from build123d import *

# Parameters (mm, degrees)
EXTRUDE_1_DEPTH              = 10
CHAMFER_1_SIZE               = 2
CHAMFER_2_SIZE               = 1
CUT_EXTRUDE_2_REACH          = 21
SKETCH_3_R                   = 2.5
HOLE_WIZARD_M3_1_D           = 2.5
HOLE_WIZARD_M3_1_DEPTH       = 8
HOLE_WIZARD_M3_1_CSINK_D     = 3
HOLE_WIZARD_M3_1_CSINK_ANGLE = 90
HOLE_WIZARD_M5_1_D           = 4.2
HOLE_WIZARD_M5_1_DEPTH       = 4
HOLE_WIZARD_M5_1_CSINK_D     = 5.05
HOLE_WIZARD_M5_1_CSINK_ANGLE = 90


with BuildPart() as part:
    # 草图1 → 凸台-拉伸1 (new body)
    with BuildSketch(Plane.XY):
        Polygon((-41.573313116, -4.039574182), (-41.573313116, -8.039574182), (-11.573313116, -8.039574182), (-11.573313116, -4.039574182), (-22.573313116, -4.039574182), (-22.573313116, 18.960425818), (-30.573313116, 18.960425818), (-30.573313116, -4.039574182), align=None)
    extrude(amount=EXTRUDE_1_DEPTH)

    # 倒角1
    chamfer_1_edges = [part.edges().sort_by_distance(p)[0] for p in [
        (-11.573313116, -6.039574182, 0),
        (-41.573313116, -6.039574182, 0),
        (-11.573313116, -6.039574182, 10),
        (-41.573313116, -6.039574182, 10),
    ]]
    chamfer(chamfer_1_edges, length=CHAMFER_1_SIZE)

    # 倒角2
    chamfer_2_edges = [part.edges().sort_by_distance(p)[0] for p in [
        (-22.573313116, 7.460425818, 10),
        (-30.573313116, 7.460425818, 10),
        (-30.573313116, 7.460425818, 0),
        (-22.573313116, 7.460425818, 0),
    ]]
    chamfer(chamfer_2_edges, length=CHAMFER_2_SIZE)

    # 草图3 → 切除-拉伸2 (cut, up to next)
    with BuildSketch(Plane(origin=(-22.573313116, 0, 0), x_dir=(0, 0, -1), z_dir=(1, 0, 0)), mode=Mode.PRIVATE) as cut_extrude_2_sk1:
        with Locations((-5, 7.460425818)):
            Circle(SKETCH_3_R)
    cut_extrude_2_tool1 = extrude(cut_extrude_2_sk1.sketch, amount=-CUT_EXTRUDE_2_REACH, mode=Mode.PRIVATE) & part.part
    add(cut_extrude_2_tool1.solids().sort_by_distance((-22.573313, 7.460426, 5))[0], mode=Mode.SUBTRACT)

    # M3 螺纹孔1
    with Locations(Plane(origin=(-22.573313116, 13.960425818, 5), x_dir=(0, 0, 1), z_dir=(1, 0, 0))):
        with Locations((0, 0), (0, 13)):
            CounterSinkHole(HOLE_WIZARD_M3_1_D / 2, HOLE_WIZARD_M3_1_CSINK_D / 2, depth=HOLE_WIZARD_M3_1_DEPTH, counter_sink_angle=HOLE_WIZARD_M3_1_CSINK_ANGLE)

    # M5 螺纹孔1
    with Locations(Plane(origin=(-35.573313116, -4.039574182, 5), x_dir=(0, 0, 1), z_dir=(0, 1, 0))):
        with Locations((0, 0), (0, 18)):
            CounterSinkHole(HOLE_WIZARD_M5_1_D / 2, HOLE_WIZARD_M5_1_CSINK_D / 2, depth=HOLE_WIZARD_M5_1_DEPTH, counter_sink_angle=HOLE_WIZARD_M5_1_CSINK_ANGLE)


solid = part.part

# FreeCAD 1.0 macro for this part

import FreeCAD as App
import Part
import Sketcher
from FreeCAD import Vector
Q = App.Units.Quantity


def edges_at(feature, points):
    """Names of the edges that pass closest to the given points."""
    edges = feature.Shape.Edges
    near = lambda p: min(range(len(edges)), key=lambda i: edges[i].distToShape(Part.Vertex(*p))[0])
    return sorted({f"Edge{near(p) + 1}" for p in points})


def add_polygon(sketch, points):
    """Adds a closed chain of lines whose ends are joined by coincident constraints."""
    first, n = sketch.GeometryCount, len(points)
    for a, b in zip(points, points[1:] + points[:1]):
        sketch.addGeometry(Part.LineSegment(App.Vector(*a, 0), App.Vector(*b, 0)), False)
    for i in range(n):
        sketch.addConstraint(Sketcher.Constraint("Coincident", first + i, 2, first + (i + 1) % n, 1))

doc = App.newDocument("Part")
body = doc.addObject("PartDesign::Body", "Body")

sketch1 = body.newObject("Sketcher::SketchObject", "Sketch")
sketch1.AttachmentSupport = (doc.getObject("XY_Plane"), [""])
sketch1.MapMode = "FlatFace"
add_polygon(sketch1, [(-41.6, -4), (-41.6, -8), (-11.6, -8), (-11.6, -4), (-22.6, -4), (-22.6, 19), (-30.6, 19), (-30.6, -4)])
sketch1.addConstraint(Sketcher.Constraint("Vertical", 0))
sketch1.addConstraint(Sketcher.Constraint("Horizontal", 1))
sketch1.addConstraint(Sketcher.Constraint("Vertical", 2))
sketch1.addConstraint(Sketcher.Constraint("Horizontal", 3))
sketch1.addConstraint(Sketcher.Constraint("Vertical", 4))
sketch1.addConstraint(Sketcher.Constraint("Horizontal", 5))
sketch1.addConstraint(Sketcher.Constraint("Vertical", 6))
sketch1.addConstraint(Sketcher.Constraint("Horizontal", 7))
sketch1.addConstraint(Sketcher.Constraint("Horizontal", 3, 2, 6, 2))
sketch1.addConstraint(Sketcher.Constraint("Equal", 3, 7))
sketch1.addConstraint(Sketcher.Constraint("DistanceX", 1, 1, 1, 2, Q("30 mm")))
sketch1.addConstraint(Sketcher.Constraint("DistanceX", 3, 2, 3, 1, Q("11 mm")))
sketch1.addConstraint(Sketcher.Constraint("DistanceY", 0, 2, 0, 1, Q("4 mm")))
sketch1.addConstraint(Sketcher.Constraint("DistanceY", 4, 1, 4, 2, Q("23 mm")))
sketch1.addConstraint(Sketcher.Constraint("DistanceX", 0, 2, -1, 1, Q("41.573313 mm")))
sketch1.addConstraint(Sketcher.Constraint("DistanceY", 0, 2, -1, 1, Q("8.039574 mm")))
pad1 = body.newObject("PartDesign::Pad", "Pad")
pad1.Profile = sketch1
pad1.Length = 10
doc.recompute()

chamfer = body.newObject("PartDesign::Chamfer", "Chamfer")
chamfer.Base = (pad1, edges_at(pad1, [
    (-11.573, -6.04, 0),
    (-41.573, -6.04, 0),
    (-11.573, -6.04, 10),
    (-41.573, -6.04, 10),
]))
chamfer.Size = 2
doc.recompute()

chamfer2 = body.newObject("PartDesign::Chamfer", "Chamfer001")
chamfer2.Base = (chamfer, edges_at(chamfer, [
    (-22.573, 7.46, 10),
    (-30.573, 7.46, 10),
    (-30.573, 7.46, 0),
    (-22.573, 7.46, 0),
]))
chamfer2.Size = 1

sketch2 = body.newObject("Sketcher::SketchObject", "Sketch001")
sketch2.AttachmentSupport = (doc.getObject("YZ_Plane"), [""])
sketch2.MapMode = "FlatFace"
sketch2.AttachmentOffset = App.Placement(Vector(0, 0, -22.573313), App.Rotation())
sketch2.addGeometry(Part.Circle(Vector(7.5, 5, 0), Vector(0, 0, 1), 2.5), False)
sketch2.addConstraint(Sketcher.Constraint("Diameter", 0, Q("5 mm")))
sketch2.addConstraint(Sketcher.Constraint("DistanceY", -1, 1, 0, 3, Q("5 mm")))
sketch2.addConstraint(Sketcher.Constraint("DistanceX", -1, 1, 0, 3, Q("7.460426 mm")))
pocket1 = body.newObject("PartDesign::Pocket", "Pocket")
pocket1.Profile = sketch2
pocket1.Type = "UpToFirst"

sketch3 = body.newObject("Sketcher::SketchObject", "Sketch002")
sketch3.AttachmentSupport = (doc.getObject("YZ_Plane"), [""])
sketch3.MapMode = "FlatFace"
sketch3.AttachmentOffset = App.Placement(Vector(0, 0, -22.573313), App.Rotation())
sketch3.addGeometry(Part.Circle(Vector(14, 5, 0), Vector(0, 0, 1), 1.2), False)
sketch3.addGeometry(Part.Circle(Vector(1, 5, 0), Vector(0, 0, 1), 1.2), False)
sketch3.addConstraint(Sketcher.Constraint("Equal", 0, 1))
sketch3.addConstraint(Sketcher.Constraint("Horizontal", 0, 3, 1, 3))
sketch3.addConstraint(Sketcher.Constraint("Diameter", 0, Q("2.5 mm")))
sketch3.addConstraint(Sketcher.Constraint("DistanceY", -1, 1, 0, 3, Q("5 mm")))
sketch3.addConstraint(Sketcher.Constraint("DistanceX", 1, 3, 0, 3, Q("13 mm")))
sketch3.addConstraint(Sketcher.Constraint("DistanceX", -1, 1, 0, 3, Q("13.960426 mm")))
doc.recompute()
hole = body.newObject("PartDesign::Hole", "Hole")
hole.Profile = sketch3
hole.ThreadType = "None"
hole.Diameter = 2.5
hole.DepthType = "Dimension"
hole.Depth = 8
hole.DrillPoint = "Flat"
hole.HoleCutType = "Countersink"
hole.HoleCutDiameter = 3
hole.HoleCutCountersinkAngle = 90

sketch4 = body.newObject("Sketcher::SketchObject", "Sketch003")
sketch4.AttachmentSupport = (doc.getObject("XZ_Plane"), [""])
sketch4.MapMode = "FlatFace"
sketch4.AttachmentOffset = App.Placement(Vector(0, 0, 4.039574), App.Rotation())
sketch4.addGeometry(Part.Circle(Vector(-35.6, 5, 0), Vector(0, 0, 1), 2.1), False)
sketch4.addGeometry(Part.Circle(Vector(-17.6, 5, 0), Vector(0, 0, 1), 2.1), False)
sketch4.addConstraint(Sketcher.Constraint("Equal", 0, 1))
sketch4.addConstraint(Sketcher.Constraint("Horizontal", 0, 3, 1, 3))
sketch4.addConstraint(Sketcher.Constraint("Diameter", 0, Q("4.2 mm")))
sketch4.addConstraint(Sketcher.Constraint("DistanceY", -1, 1, 0, 3, Q("5 mm")))
sketch4.addConstraint(Sketcher.Constraint("DistanceX", 0, 3, 1, 3, Q("18 mm")))
sketch4.addConstraint(Sketcher.Constraint("DistanceX", 0, 3, -1, 1, Q("35.573313 mm")))
doc.recompute()
hole2 = body.newObject("PartDesign::Hole", "Hole001")
hole2.Profile = sketch4
hole2.ThreadType = "None"
hole2.Diameter = 4.2
hole2.DepthType = "Dimension"
hole2.Depth = 4
hole2.DrillPoint = "Flat"
hole2.HoleCutType = "Countersink"
hole2.HoleCutDiameter = 5.05
hole2.HoleCutCountersinkAngle = 90
hole2.Reversed = True

doc.recompute()
